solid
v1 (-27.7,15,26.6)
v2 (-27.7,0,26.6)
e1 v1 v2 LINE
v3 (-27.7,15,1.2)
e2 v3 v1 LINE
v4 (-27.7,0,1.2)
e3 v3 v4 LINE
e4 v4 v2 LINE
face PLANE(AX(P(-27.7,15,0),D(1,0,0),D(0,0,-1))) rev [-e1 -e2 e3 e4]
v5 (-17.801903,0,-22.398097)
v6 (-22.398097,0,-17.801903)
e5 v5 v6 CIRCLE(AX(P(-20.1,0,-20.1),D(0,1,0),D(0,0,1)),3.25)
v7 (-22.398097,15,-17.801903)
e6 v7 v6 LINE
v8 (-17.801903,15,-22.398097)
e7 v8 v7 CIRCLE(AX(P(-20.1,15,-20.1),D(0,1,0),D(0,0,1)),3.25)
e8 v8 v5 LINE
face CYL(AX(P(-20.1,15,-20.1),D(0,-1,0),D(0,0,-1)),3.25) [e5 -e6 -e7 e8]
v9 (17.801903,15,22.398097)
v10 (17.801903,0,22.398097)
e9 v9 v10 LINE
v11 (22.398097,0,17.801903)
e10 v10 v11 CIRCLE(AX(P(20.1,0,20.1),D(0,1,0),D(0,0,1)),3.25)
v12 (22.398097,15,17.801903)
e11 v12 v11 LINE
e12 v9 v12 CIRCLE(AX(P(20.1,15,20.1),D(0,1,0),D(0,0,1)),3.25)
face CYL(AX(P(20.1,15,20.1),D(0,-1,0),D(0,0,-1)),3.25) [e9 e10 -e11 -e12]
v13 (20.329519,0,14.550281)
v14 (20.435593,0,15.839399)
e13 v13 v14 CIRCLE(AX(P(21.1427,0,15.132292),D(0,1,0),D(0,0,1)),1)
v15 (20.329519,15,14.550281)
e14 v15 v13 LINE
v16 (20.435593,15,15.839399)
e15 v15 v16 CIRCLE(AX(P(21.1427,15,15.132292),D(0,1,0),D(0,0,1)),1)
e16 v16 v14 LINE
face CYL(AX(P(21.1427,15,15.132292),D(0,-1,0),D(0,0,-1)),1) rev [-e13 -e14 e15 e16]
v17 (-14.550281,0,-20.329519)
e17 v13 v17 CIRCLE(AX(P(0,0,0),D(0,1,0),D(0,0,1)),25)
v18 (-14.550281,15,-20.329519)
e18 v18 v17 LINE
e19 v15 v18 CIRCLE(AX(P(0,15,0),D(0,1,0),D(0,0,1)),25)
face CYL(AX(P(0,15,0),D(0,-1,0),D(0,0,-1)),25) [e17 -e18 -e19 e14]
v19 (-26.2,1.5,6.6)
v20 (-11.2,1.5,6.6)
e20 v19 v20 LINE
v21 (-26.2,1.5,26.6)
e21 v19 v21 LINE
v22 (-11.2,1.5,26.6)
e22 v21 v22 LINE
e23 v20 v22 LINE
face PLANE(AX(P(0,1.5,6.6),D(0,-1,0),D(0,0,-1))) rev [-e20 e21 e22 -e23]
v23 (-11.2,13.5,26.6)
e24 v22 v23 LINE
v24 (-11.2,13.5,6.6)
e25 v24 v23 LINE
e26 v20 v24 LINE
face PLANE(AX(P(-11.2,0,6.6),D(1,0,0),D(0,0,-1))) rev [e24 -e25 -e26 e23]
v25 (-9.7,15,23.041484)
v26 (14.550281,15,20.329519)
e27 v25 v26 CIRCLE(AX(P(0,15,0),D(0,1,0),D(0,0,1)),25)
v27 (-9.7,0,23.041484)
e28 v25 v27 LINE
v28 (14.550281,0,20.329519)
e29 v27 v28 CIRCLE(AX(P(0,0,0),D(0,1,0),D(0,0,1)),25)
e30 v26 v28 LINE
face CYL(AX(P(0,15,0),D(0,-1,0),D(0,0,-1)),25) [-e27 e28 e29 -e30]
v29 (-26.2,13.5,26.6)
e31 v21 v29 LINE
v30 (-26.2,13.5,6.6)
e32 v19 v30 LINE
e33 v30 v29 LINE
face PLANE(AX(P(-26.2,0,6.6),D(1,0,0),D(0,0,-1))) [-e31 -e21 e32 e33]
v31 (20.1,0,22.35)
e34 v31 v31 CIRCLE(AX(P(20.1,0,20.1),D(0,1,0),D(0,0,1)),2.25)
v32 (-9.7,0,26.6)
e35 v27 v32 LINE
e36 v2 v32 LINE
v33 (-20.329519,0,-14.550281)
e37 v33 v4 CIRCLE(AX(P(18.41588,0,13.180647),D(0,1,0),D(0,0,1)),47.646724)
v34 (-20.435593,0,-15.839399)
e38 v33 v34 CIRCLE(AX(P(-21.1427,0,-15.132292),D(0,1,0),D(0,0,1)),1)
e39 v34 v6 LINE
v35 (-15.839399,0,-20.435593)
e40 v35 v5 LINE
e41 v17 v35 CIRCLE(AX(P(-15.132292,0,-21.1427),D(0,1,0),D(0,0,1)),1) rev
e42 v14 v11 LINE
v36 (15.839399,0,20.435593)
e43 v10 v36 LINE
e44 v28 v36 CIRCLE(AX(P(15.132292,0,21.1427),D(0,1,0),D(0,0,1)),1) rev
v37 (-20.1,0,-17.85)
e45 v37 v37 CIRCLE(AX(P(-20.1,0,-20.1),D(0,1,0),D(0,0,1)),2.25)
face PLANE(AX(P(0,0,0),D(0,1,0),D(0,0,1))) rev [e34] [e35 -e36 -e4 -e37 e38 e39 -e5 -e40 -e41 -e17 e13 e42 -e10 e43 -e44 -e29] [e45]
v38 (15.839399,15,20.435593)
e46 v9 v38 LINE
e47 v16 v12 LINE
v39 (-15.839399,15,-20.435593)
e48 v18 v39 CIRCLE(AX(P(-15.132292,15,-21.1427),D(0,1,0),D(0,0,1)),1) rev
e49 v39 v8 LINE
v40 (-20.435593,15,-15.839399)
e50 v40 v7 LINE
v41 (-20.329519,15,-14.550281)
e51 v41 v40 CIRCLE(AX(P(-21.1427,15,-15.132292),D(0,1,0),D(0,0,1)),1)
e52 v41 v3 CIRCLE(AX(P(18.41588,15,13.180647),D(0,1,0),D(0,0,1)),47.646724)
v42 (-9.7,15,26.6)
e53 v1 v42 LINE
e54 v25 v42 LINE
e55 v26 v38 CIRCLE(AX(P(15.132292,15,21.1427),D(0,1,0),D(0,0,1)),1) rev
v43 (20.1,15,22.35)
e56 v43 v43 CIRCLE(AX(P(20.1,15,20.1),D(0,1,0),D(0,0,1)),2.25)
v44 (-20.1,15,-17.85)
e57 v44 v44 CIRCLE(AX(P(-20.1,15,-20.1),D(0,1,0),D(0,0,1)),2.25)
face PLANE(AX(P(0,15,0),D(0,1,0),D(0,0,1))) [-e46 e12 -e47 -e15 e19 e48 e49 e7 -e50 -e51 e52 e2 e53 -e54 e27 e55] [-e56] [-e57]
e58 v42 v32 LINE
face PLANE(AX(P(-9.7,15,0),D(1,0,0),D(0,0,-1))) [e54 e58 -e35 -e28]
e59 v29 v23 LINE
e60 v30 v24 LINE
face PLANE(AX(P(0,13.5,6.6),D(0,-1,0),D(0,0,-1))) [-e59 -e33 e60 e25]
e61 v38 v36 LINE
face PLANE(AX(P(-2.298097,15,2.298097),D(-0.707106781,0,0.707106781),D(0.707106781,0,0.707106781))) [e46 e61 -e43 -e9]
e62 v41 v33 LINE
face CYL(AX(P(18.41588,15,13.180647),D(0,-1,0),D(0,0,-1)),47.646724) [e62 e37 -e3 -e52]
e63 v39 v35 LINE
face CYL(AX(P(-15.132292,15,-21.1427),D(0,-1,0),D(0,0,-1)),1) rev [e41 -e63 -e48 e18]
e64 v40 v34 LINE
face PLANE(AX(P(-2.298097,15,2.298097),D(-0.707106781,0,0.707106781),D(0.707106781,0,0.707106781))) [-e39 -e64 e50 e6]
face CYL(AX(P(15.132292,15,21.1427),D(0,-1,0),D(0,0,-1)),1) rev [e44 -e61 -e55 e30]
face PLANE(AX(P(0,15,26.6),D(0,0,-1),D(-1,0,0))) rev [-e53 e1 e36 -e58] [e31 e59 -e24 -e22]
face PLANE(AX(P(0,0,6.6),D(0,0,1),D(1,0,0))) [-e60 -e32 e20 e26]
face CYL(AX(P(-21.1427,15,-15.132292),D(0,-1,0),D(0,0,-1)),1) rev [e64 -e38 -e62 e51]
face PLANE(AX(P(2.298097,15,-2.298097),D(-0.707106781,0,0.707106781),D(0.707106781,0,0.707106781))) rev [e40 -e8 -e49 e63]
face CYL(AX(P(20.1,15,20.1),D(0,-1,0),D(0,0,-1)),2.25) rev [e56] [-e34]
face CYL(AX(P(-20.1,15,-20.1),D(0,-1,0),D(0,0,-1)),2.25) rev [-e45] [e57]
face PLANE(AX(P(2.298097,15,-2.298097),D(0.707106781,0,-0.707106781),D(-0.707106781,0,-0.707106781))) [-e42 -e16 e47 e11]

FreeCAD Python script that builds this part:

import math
import FreeCAD as App
import Part
import Sketcher
Q = App.Units.Quantity

doc = App.newDocument("Part")
body = doc.addObject("PartDesign::Body", "Body")

# Sketch on XZ plane
sketch1 = doc.addObject("Sketcher::SketchObject", "Sketch")
body.addObject(sketch1)
sketch1.AttachmentSupport = (doc.XZ_Plane, [""])
sketch1.MapMode = "FlatFace"
sketch1.addGeometry(Part.ArcOfCircle(Part.Circle(App.Vector(-20.1, -20.1, 0), App.Vector(0, 0, 1), 3.2), math.radians(135), math.radians(315)), False)
sketch1.addGeometry(Part.LineSegment(App.Vector(-22.4, -17.8, 0), App.Vector(-20.4, -15.8, 0)), False)
sketch1.addGeometry(Part.ArcOfCircle(Part.Circle(App.Vector(-21.1, -15.1, 0), App.Vector(0, 0, 1), 1), math.radians(-45), math.radians(36)), False)
sketch1.addGeometry(Part.ArcOfCircle(Part.Circle(App.Vector(18.4, 13.2, 0), App.Vector(0, 0, 1), 47.6), math.radians(-165), math.radians(-144)), False)
sketch1.addGeometry(Part.LineSegment(App.Vector(-27.7, 1.2, 0), App.Vector(-27.7, 26.6, 0)), False)
sketch1.addGeometry(Part.LineSegment(App.Vector(-27.7, 26.6, 0), App.Vector(-9.7, 26.6, 0)), False)
sketch1.addGeometry(Part.LineSegment(App.Vector(-9.7, 26.6, 0), App.Vector(-9.7, 23, 0)), False)
sketch1.addGeometry(Part.ArcOfCircle(Part.Circle(App.Vector(0, 0, 0), App.Vector(0, 0, 1), 25), math.radians(54), math.radians(113)), False)
sketch1.addGeometry(Part.ArcOfCircle(Part.Circle(App.Vector(15.1, 21.1, 0), App.Vector(0, 0, 1), 1), math.radians(-126), math.radians(-45)), False)
sketch1.addGeometry(Part.LineSegment(App.Vector(15.8, 20.4, 0), App.Vector(17.8, 22.4, 0)), False)
sketch1.addGeometry(Part.ArcOfCircle(Part.Circle(App.Vector(20.1, 20.1, 0), App.Vector(0, 0, 1), 3.2), math.radians(-45), math.radians(135)), False)
sketch1.addGeometry(Part.LineSegment(App.Vector(22.4, 17.8, 0), App.Vector(20.4, 15.8, 0)), False)
sketch1.addGeometry(Part.ArcOfCircle(Part.Circle(App.Vector(21.1, 15.1, 0), App.Vector(0, 0, 1), 1), math.radians(135), math.radians(216)), False)
sketch1.addGeometry(Part.ArcOfCircle(Part.Circle(App.Vector(0, 0, 0), App.Vector(0, 0, 1), 25), math.radians(0), math.radians(36)), False)
sketch1.addGeometry(Part.ArcOfCircle(Part.Circle(App.Vector(0, 0, 0), App.Vector(0, 0, 1), 25), math.radians(-126), math.radians(0)), False)
sketch1.addGeometry(Part.ArcOfCircle(Part.Circle(App.Vector(-15.1, -21.1, 0), App.Vector(0, 0, 1), 1), math.radians(54), math.radians(135)), False)
sketch1.addGeometry(Part.LineSegment(App.Vector(-15.8, -20.4, 0), App.Vector(-17.8, -22.4, 0)), False)
sketch1.addGeometry(Part.Circle(App.Vector(-20.1, -20.1, 0), App.Vector(0, 0, 1), 2.2), False)
sketch1.addGeometry(Part.Circle(App.Vector(20.1, 20.1, 0), App.Vector(0, 0, 1), 2.2), False)
sketch1.addConstraint(Sketcher.Constraint("Tangent", 0, 1, 1, 1))
sketch1.addConstraint(Sketcher.Constraint("Tangent", 1, 2, 2, 1))
sketch1.addConstraint(Sketcher.Constraint("Tangent", 2, 2, 3, 2))
sketch1.addConstraint(Sketcher.Constraint("Coincident", 3, 1, 4, 1))
sketch1.addConstraint(Sketcher.Constraint("Coincident", 4, 2, 5, 1))
sketch1.addConstraint(Sketcher.Constraint("Coincident", 5, 2, 6, 1))
sketch1.addConstraint(Sketcher.Constraint("Coincident", 6, 2, 7, 2))
sketch1.addConstraint(Sketcher.Constraint("Tangent", 7, 1, 8, 1))
sketch1.addConstraint(Sketcher.Constraint("Tangent", 8, 2, 9, 1))
sketch1.addConstraint(Sketcher.Constraint("Tangent", 9, 2, 10, 2))
sketch1.addConstraint(Sketcher.Constraint("Tangent", 10, 1, 11, 1))
sketch1.addConstraint(Sketcher.Constraint("Tangent", 11, 2, 12, 1))
sketch1.addConstraint(Sketcher.Constraint("Tangent", 12, 2, 13, 2))
sketch1.addConstraint(Sketcher.Constraint("Tangent", 13, 1, 14, 2))
sketch1.addConstraint(Sketcher.Constraint("Tangent", 14, 1, 15, 1))
sketch1.addConstraint(Sketcher.Constraint("Tangent", 15, 2, 16, 1))
sketch1.addConstraint(Sketcher.Constraint("Tangent", 16, 2, 0, 2))
sketch1.addConstraint(Sketcher.Constraint("Vertical", 4))
sketch1.addConstraint(Sketcher.Constraint("Horizontal", 5))
sketch1.addConstraint(Sketcher.Constraint("Vertical", 6))
sketch1.addConstraint(Sketcher.Constraint("Coincident", 7, 3, -1, 1))
sketch1.addConstraint(Sketcher.Constraint("Coincident", 13, 3, -1, 1))
sketch1.addConstraint(Sketcher.Constraint("Coincident", 17, 3, 0, 3))
sketch1.addConstraint(Sketcher.Constraint("Coincident", 18, 3, 10, 3))
sketch1.addConstraint(Sketcher.Constraint("Equal", 2, 8))
sketch1.addConstraint(Sketcher.Constraint("Equal", 0, 10))
sketch1.addConstraint(Sketcher.Constraint("Equal", 8, 12))
sketch1.addConstraint(Sketcher.Constraint("Equal", 7, 13))
sketch1.addConstraint(Sketcher.Constraint("Equal", 13, 14))
sketch1.addConstraint(Sketcher.Constraint("Equal", 12, 15))
sketch1.addConstraint(Sketcher.Constraint("Equal", 17, 18))
sketch1.addConstraint(Sketcher.Constraint("Symmetric", 0, 3, 10, 3, -1, 1))
sketch1.addConstraint(Sketcher.Constraint("Symmetric", 2, 3, 12, 3, -1, 1))
sketch1.addConstraint(Sketcher.Constraint("PointOnObject", 13, 1, -1))
sketch1.addConstraint(Sketcher.Constraint("Parallel", 1, 9))
sketch1.addConstraint(Sketcher.Constraint("Parallel", 11, 16))
sketch1.addConstraint(Sketcher.Constraint("Equal", 1, 9))
sketch1.addConstraint(Sketcher.Constraint("Radius", 2, 1.0))
sketch1.addConstraint(Sketcher.Constraint("Radius", 7, 25.0))
sketch1.addConstraint(Sketcher.Constraint("Diameter", 17, 4.5))
sketch1.addConstraint(Sketcher.Constraint("DistanceX", 5, 1, 5, 2, 18.0))
sketch1.addConstraint(Sketcher.Constraint("Angle", 1, Q("45 deg")))
sketch1.addConstraint(Sketcher.Constraint("Radius", 0, 3.25))
sketch1.addConstraint(Sketcher.Constraint("DistanceY", 4, 1, 4, 2, 25.4))
sketch1.addConstraint(Sketcher.Constraint("DistanceX", 0, 3, -1, 1, 20.1))
sketch1.addConstraint(Sketcher.Constraint("DistanceX", 3, 1, -1, 1, 27.7))
sketch1.addConstraint(Sketcher.Constraint("DistanceY", -1, 1, 3, 1, 1.2))
sketch1.addConstraint(Sketcher.Constraint("Radius", 3, 47.646724))
pad1 = doc.addObject("PartDesign::Pad", "Pad")
body.addObject(pad1)
pad1.Profile = sketch1
pad1.Length = 15
pad1.Reversed = True

# Sketch on XY plane
sketch2 = doc.addObject("Sketcher::SketchObject", "Sketch001")
body.addObject(sketch2)
sketch2.AttachmentSupport = (doc.XY_Plane, [""])
sketch2.MapMode = "FlatFace"
sketch2.AttachmentOffset = App.Placement(App.Vector(0, 0, 26.6), App.Rotation())
sketch2.addGeometry(Part.LineSegment(App.Vector(-26, 14, 0), App.Vector(-26, 2, 0)), False)
sketch2.addGeometry(Part.LineSegment(App.Vector(-26, 2, 0), App.Vector(-11, 2, 0)), False)
sketch2.addGeometry(Part.LineSegment(App.Vector(-11, 2, 0), App.Vector(-11, 14, 0)), False)
sketch2.addGeometry(Part.LineSegment(App.Vector(-11, 14, 0), App.Vector(-26, 14, 0)), False)
sketch2.addConstraint(Sketcher.Constraint("Coincident", 0, 2, 1, 1))
sketch2.addConstraint(Sketcher.Constraint("Coincident", 1, 2, 2, 1))
sketch2.addConstraint(Sketcher.Constraint("Coincident", 2, 2, 3, 1))
sketch2.addConstraint(Sketcher.Constraint("Coincident", 3, 2, 0, 1))
sketch2.addConstraint(Sketcher.Constraint("Vertical", 0))
sketch2.addConstraint(Sketcher.Constraint("Horizontal", 1))
sketch2.addConstraint(Sketcher.Constraint("Vertical", 2))
sketch2.addConstraint(Sketcher.Constraint("Horizontal", 3))
sketch2.addConstraint(Sketcher.Constraint("DistanceX", 1, 1, 1, 2, 15.0))
sketch2.addConstraint(Sketcher.Constraint("DistanceY", 0, 2, 0, 1, 12.0))
sketch2.addConstraint(Sketcher.Constraint("DistanceX", 0, 2, -1, 1, 26.2))
sketch2.addConstraint(Sketcher.Constraint("DistanceY", -1, 1, 0, 2, 1.5))
pocket1 = doc.addObject("PartDesign::Pocket", "Pocket")
body.addObject(pocket1)
pocket1.Profile = sketch2
pocket1.Length = 20

doc.recompute()
